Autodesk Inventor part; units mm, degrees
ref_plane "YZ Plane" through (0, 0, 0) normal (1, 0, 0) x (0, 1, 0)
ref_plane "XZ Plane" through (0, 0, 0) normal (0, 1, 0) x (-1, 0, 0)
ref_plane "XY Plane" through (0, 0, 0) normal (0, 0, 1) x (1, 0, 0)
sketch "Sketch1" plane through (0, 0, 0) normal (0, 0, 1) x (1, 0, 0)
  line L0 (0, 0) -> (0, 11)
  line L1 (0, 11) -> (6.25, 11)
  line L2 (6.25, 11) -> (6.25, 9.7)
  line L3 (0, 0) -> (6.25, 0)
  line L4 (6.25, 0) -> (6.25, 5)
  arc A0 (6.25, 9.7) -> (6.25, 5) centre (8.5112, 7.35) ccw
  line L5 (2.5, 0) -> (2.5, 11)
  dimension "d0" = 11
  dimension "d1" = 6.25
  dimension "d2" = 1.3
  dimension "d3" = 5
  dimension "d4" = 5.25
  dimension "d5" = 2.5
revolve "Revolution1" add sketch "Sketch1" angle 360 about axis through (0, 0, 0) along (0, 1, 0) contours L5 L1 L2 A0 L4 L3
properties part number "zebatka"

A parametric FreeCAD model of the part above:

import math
import FreeCAD as App
import Part
import Sketcher
Q = App.Units.Quantity

doc = App.newDocument("Part")
params = doc.addObject("Spreadsheet::Sheet", "Params")
for row, (alias, value) in enumerate([
    ("sketch1_height", "11 mm"),
    ("sketch1_height2", "5 mm"),
    ("sketch1_height3", "1.3 mm"),
    ("revolution_angle", "360 deg"),
], start=1):
    params.set(f"A{row}", alias)
    params.set(f"B{row}", "=" + value)
    params.setAlias(f"B{row}", alias)

body = doc.addObject("PartDesign::Body", "Body")

sketch1 = body.newObject("Sketcher::SketchObject", "Sketch")
sketch1.AttachmentSupport = (doc.getObject("XY_Plane"), [""])
sketch1.MapMode = "FlatFace"
sketch1.addGeometry(Part.LineSegment(App.Vector(2.5, 11, 0), App.Vector(2.5, 0, 0)), False)
sketch1.addGeometry(Part.LineSegment(App.Vector(2.5, 0, 0), App.Vector(6.2, 0, 0)), False)
sketch1.addGeometry(Part.LineSegment(App.Vector(6.2, 0, 0), App.Vector(6.2, 5, 0)), False)
sketch1.addGeometry(Part.ArcOfCircle(Part.Circle(App.Vector(8.5, 7.3, 0), App.Vector(0, 0, 1), 3.3), math.radians(134), math.radians(226)), False)
sketch1.addGeometry(Part.LineSegment(App.Vector(6.2, 9.7, 0), App.Vector(6.2, 11, 0)), False)
sketch1.addGeometry(Part.LineSegment(App.Vector(6.2, 11, 0), App.Vector(2.5, 11, 0)), False)
sketch1.addConstraint(Sketcher.Constraint("Coincident", 0, 2, 1, 1))
sketch1.addConstraint(Sketcher.Constraint("Coincident", 1, 2, 2, 1))
sketch1.addConstraint(Sketcher.Constraint("Coincident", 2, 2, 3, 2))
sketch1.addConstraint(Sketcher.Constraint("Coincident", 3, 1, 4, 1))
sketch1.addConstraint(Sketcher.Constraint("Coincident", 4, 2, 5, 1))
sketch1.addConstraint(Sketcher.Constraint("Coincident", 5, 2, 0, 1))
sketch1.addConstraint(Sketcher.Constraint("Vertical", 0))
sketch1.addConstraint(Sketcher.Constraint("Horizontal", 1))
sketch1.addConstraint(Sketcher.Constraint("Vertical", 2))
sketch1.addConstraint(Sketcher.Constraint("Vertical", 4))
sketch1.addConstraint(Sketcher.Constraint("Horizontal", 5))
sketch1.addConstraint(Sketcher.Constraint("PointOnObject", 0, 2, -1))
sketch1.addConstraint(Sketcher.Constraint("Vertical", 2, 2, 3, 1))
sketch1.addConstraint(Sketcher.Constraint("DistanceY", 0, 2, 0, 1, Q("11 mm")))
sketch1.addConstraint(Sketcher.Constraint("DistanceY", 2, 1, 2, 2, Q("5 mm")))
sketch1.addConstraint(Sketcher.Constraint("DistanceY", 4, 1, 4, 2, Q("1.3 mm")))
sketch1.addConstraint(Sketcher.Constraint("DistanceX", -1, 1, 0, 2, Q("2.5 mm")))
sketch1.addConstraint(Sketcher.Constraint("DistanceX", -1, 1, 1, 2, Q("6.25 mm")))
sketch1.addConstraint(Sketcher.Constraint("Radius", 3, Q("3.2612 mm")))
sketch1.setExpression("Constraints[13]", "Params.sketch1_height")
sketch1.setExpression("Constraints[14]", "Params.sketch1_height2")
sketch1.setExpression("Constraints[15]", "Params.sketch1_height3")
revolution = body.newObject("PartDesign::Revolution", "Revolution")
revolution.Profile = sketch1
revolution.ReferenceAxis = (sketch1, ["V_Axis"])
revolution.setExpression("Angle", "Params.revolution_angle")

doc.recompute()
